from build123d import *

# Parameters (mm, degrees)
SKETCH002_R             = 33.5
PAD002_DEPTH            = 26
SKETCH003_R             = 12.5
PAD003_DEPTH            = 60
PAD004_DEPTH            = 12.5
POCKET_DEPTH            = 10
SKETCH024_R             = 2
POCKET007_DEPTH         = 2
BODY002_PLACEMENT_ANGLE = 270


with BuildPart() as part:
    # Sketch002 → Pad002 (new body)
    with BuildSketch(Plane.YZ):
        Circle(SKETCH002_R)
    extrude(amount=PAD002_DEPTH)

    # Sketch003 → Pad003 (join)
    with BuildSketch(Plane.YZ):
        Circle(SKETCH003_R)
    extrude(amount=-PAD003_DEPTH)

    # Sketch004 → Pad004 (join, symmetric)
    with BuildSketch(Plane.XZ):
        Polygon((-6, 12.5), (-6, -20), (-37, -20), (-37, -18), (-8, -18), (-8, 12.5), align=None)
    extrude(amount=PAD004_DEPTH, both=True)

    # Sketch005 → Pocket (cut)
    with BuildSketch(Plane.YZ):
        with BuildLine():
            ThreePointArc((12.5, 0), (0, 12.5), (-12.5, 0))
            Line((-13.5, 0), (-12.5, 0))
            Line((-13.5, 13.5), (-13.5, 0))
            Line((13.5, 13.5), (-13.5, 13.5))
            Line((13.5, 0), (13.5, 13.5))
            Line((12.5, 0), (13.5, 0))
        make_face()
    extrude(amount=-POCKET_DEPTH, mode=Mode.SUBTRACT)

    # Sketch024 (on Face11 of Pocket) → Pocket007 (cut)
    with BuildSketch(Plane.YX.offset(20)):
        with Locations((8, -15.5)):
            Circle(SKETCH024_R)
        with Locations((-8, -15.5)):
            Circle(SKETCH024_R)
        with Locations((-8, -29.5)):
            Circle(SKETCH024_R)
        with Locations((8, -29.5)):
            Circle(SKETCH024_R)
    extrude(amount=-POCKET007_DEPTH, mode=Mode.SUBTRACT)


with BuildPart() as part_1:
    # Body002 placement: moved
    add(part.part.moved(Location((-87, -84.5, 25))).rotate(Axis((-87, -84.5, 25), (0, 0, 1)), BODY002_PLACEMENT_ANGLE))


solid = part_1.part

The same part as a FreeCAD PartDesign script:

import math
import FreeCAD as App
import Part
import Sketcher
Q = App.Units.Quantity

doc = App.newDocument("Part")
params = doc.addObject("Spreadsheet::Sheet", "Params")
for row, (alias, value) in enumerate([
    ("sketch1_diameter", "67 mm"),
    ("pad1_length", "26 mm"),
    ("sketch2_diameter", "25 mm"),
    ("pad2_length", "60 mm"),
    ("sketch3_width", "2 mm"),
    ("sketch3_width2", "29 mm"),
    ("sketch3_height", "32.5 mm"),
    ("pad3_length", "25 mm"),
    ("sketch4_radius", "12.5 mm"),
    ("sketch4_width", "1 mm"),
    ("sketch4_height", "13.5 mm"),
    ("pocket1_length", "10 mm"),
    ("sketch5_diameter", "4 mm"),
    ("pocket2_length", "2 mm"),
], start=1):
    params.set(f"A{row}", alias)
    params.set(f"B{row}", "=" + value)
    params.setAlias(f"B{row}", alias)

body = doc.addObject("PartDesign::Body", "Body")

sketch1 = body.newObject("Sketcher::SketchObject", "Sketch")
sketch1.AttachmentSupport = (doc.getObject("YZ_Plane"), [""])
sketch1.MapMode = "FlatFace"
sketch1.addGeometry(Part.Circle(App.Vector(0, 0, 0), App.Vector(0, 0, 1), 34), False)
sketch1.addConstraint(Sketcher.Constraint("Coincident", 0, 3, -1, 1))
sketch1.addConstraint(Sketcher.Constraint("Diameter", 0, Q("67 mm")))
sketch1.setExpression("Constraints[1]", "Params.sketch1_diameter")
pad1 = body.newObject("PartDesign::Pad", "Pad")
pad1.Profile = sketch1
pad1.setExpression("Length", "Params.pad1_length")

sketch2 = body.newObject("Sketcher::SketchObject", "Sketch001")
sketch2.AttachmentSupport = (doc.getObject("YZ_Plane"), [""])
sketch2.MapMode = "FlatFace"
sketch2.addGeometry(Part.Circle(App.Vector(0, 0, 0), App.Vector(0, 0, 1), 12), False)
sketch2.addConstraint(Sketcher.Constraint("Coincident", 0, 3, -1, 1))
sketch2.addConstraint(Sketcher.Constraint("Diameter", 0, Q("25 mm")))
sketch2.setExpression("Constraints[1]", "Params.sketch2_diameter")
pad2 = body.newObject("PartDesign::Pad", "Pad001")
pad2.Profile = sketch2
pad2.setExpression("Length", "Params.pad2_length")
pad2.Reversed = True

sketch3 = body.newObject("Sketcher::SketchObject", "Sketch002")
sketch3.AttachmentSupport = (doc.getObject("XZ_Plane"), [""])
sketch3.MapMode = "FlatFace"
sketch3.addGeometry(Part.LineSegment(App.Vector(-6, -20, 0), App.Vector(-6, 12.5, 0)), False)
sketch3.addGeometry(Part.LineSegment(App.Vector(-6, 12.5, 0), App.Vector(-8, 12.5, 0)), False)
sketch3.addGeometry(Part.LineSegment(App.Vector(-8, 12.5, 0), App.Vector(-8, -18, 0)), False)
sketch3.addGeometry(Part.LineSegment(App.Vector(-8, -18, 0), App.Vector(-37, -18, 0)), False)
sketch3.addGeometry(Part.LineSegment(App.Vector(-37, -18, 0), App.Vector(-37, -20, 0)), False)
sketch3.addGeometry(Part.LineSegment(App.Vector(-37, -20, 0), App.Vector(-6, -20, 0)), False)
sketch3.addConstraint(Sketcher.Constraint("Coincident", 0, 2, 1, 1))
sketch3.addConstraint(Sketcher.Constraint("Coincident", 1, 2, 2, 1))
sketch3.addConstraint(Sketcher.Constraint("Coincident", 2, 2, 3, 1))
sketch3.addConstraint(Sketcher.Constraint("Coincident", 3, 2, 4, 1))
sketch3.addConstraint(Sketcher.Constraint("Coincident", 4, 2, 5, 1))
sketch3.addConstraint(Sketcher.Constraint("Coincident", 5, 2, 0, 1))
sketch3.addConstraint(Sketcher.Constraint("Vertical", 0))
sketch3.addConstraint(Sketcher.Constraint("Horizontal", 1))
sketch3.addConstraint(Sketcher.Constraint("Vertical", 2))
sketch3.addConstraint(Sketcher.Constraint("Horizontal", 3))
sketch3.addConstraint(Sketcher.Constraint("Vertical", 4))
sketch3.addConstraint(Sketcher.Constraint("Horizontal", 5))
sketch3.addConstraint(Sketcher.Constraint("Equal", 1, 4))
sketch3.addConstraint(Sketcher.Constraint("DistanceX", 1, 2, 1, 1, Q("2 mm")))
sketch3.addConstraint(Sketcher.Constraint("DistanceX", 3, 2, 3, 1, Q("29 mm")))
sketch3.addConstraint(Sketcher.Constraint("DistanceY", 0, 1, 0, 2, Q("32.5 mm")))
sketch3.addConstraint(Sketcher.Constraint("DistanceX", 0, 2, -1, 1, Q("6 mm")))
sketch3.addConstraint(Sketcher.Constraint("DistanceY", 2, 2, -1, 1, Q("18 mm")))
sketch3.setExpression("Constraints[13]", "Params.sketch3_width")
sketch3.setExpression("Constraints[14]", "Params.sketch3_width2")
sketch3.setExpression("Constraints[15]", "Params.sketch3_height")
pad3 = body.newObject("PartDesign::Pad", "Pad002")
pad3.Profile = sketch3
pad3.setExpression("Length", "Params.pad3_length")
pad3.Midplane = True

sketch4 = body.newObject("Sketcher::SketchObject", "Sketch003")
sketch4.AttachmentSupport = (doc.getObject("YZ_Plane"), [""])
sketch4.MapMode = "FlatFace"
sketch4.addGeometry(Part.ArcOfCircle(Part.Circle(App.Vector(0, 0, 0), App.Vector(0, 0, 1), 12.5), math.radians(0), math.radians(180)), False)
sketch4.addGeometry(Part.LineSegment(App.Vector(12.5, 0, 0), App.Vector(13.5, 0, 0)), False)
sketch4.addGeometry(Part.LineSegment(App.Vector(13.5, 0, 0), App.Vector(13.5, 13.5, 0)), False)
sketch4.addGeometry(Part.LineSegment(App.Vector(13.5, 13.5, 0), App.Vector(-13.5, 13.5, 0)), False)
sketch4.addGeometry(Part.LineSegment(App.Vector(-13.5, 13.5, 0), App.Vector(-13.5, 0, 0)), False)
sketch4.addGeometry(Part.LineSegment(App.Vector(-13.5, 0, 0), App.Vector(-12.5, 0, 0)), False)
sketch4.addConstraint(Sketcher.Constraint("Coincident", 0, 1, 1, 1))
sketch4.addConstraint(Sketcher.Constraint("Coincident", 1, 2, 2, 1))
sketch4.addConstraint(Sketcher.Constraint("Coincident", 2, 2, 3, 1))
sketch4.addConstraint(Sketcher.Constraint("Coincident", 3, 2, 4, 1))
sketch4.addConstraint(Sketcher.Constraint("Coincident", 4, 2, 5, 1))
sketch4.addConstraint(Sketcher.Constraint("Coincident", 5, 2, 0, 2))
sketch4.addConstraint(Sketcher.Constraint("Horizontal", 1))
sketch4.addConstraint(Sketcher.Constraint("Vertical", 2))
sketch4.addConstraint(Sketcher.Constraint("Horizontal", 3))
sketch4.addConstraint(Sketcher.Constraint("Vertical", 4))
sketch4.addConstraint(Sketcher.Constraint("Horizontal", 5))
sketch4.addConstraint(Sketcher.Constraint("Coincident", 0, 3, -1, 1))
sketch4.addConstraint(Sketcher.Constraint("Symmetric", 1, 2, 4, 2, -1, 1))
sketch4.addConstraint(Sketcher.Constraint("PointOnObject", 0, 1, -1))
sketch4.addConstraint(Sketcher.Constraint("Radius", 0, Q("12.5 mm")))
sketch4.addConstraint(Sketcher.Constraint("DistanceX", 1, 1, 1, 2, Q("1 mm")))
sketch4.addConstraint(Sketcher.Constraint("DistanceY", 2, 1, 2, 2, Q("13.5 mm")))
sketch4.setExpression("Constraints[14]", "Params.sketch4_radius")
sketch4.setExpression("Constraints[15]", "Params.sketch4_width")
sketch4.setExpression("Constraints[16]", "Params.sketch4_height")
pocket1 = body.newObject("PartDesign::Pocket", "Pocket")
pocket1.Profile = sketch4
pocket1.setExpression("Length", "Params.pocket1_length")

sketch5 = body.newObject("Sketcher::SketchObject", "Sketch004")
sketch5.AttachmentSupport = (doc.getObject("XY_Plane"), [""])
sketch5.MapMode = "FlatFace"
sketch5.AttachmentOffset = App.Placement(App.Vector(0, 0, -20), App.Rotation())
sketch5.addGeometry(Part.Circle(App.Vector(-15.5, 8, 0), App.Vector(0, 0, 1), 2), False)
sketch5.addGeometry(Part.Circle(App.Vector(-15.5, -8, 0), App.Vector(0, 0, 1), 2), False)
sketch5.addGeometry(Part.Circle(App.Vector(-29.5, -8, 0), App.Vector(0, 0, 1), 2), False)
sketch5.addGeometry(Part.Circle(App.Vector(-29.5, 8, 0), App.Vector(0, 0, 1), 2), False)
sketch5.addConstraint(Sketcher.Constraint("Equal", 0, 1))
sketch5.addConstraint(Sketcher.Constraint("Equal", 1, 2))
sketch5.addConstraint(Sketcher.Constraint("Equal", 2, 3))
sketch5.addConstraint(Sketcher.Constraint("Symmetric", 0, 3, 1, 3, -1))
sketch5.addConstraint(Sketcher.Constraint("Symmetric", 2, 3, 3, 3, -1))
sketch5.addConstraint(Sketcher.Constraint("Horizontal", 1, 3, 2, 3))
sketch5.addConstraint(Sketcher.Constraint("Diameter", 0, Q("4 mm")))
sketch5.addConstraint(Sketcher.Constraint("DistanceY", -1, 1, 0, 3, Q("8 mm")))
sketch5.addConstraint(Sketcher.Constraint("DistanceX", 2, 3, 1, 3, Q("14 mm")))
sketch5.addConstraint(Sketcher.Constraint("DistanceX", 0, 3, -1, 1, Q("15.5 mm")))
sketch5.setExpression("Constraints[6]", "Params.sketch5_diameter")
pocket2 = body.newObject("PartDesign::Pocket", "Pocket001")
pocket2.Profile = sketch5
pocket2.setExpression("Length", "Params.pocket2_length")
pocket2.Reversed = True
body2 = doc.addObject("PartDesign::Body", "Body001")
doc.recompute()

body.Placement = App.Placement(App.Vector(-87, -84.5, 25), App.Rotation(App.Vector(0, 0, 1), 270))
boolean = body2.newObject("PartDesign::Boolean", "Boolean")
boolean.Type = "Fuse"
boolean.addObjects([body])

doc.recompute()
